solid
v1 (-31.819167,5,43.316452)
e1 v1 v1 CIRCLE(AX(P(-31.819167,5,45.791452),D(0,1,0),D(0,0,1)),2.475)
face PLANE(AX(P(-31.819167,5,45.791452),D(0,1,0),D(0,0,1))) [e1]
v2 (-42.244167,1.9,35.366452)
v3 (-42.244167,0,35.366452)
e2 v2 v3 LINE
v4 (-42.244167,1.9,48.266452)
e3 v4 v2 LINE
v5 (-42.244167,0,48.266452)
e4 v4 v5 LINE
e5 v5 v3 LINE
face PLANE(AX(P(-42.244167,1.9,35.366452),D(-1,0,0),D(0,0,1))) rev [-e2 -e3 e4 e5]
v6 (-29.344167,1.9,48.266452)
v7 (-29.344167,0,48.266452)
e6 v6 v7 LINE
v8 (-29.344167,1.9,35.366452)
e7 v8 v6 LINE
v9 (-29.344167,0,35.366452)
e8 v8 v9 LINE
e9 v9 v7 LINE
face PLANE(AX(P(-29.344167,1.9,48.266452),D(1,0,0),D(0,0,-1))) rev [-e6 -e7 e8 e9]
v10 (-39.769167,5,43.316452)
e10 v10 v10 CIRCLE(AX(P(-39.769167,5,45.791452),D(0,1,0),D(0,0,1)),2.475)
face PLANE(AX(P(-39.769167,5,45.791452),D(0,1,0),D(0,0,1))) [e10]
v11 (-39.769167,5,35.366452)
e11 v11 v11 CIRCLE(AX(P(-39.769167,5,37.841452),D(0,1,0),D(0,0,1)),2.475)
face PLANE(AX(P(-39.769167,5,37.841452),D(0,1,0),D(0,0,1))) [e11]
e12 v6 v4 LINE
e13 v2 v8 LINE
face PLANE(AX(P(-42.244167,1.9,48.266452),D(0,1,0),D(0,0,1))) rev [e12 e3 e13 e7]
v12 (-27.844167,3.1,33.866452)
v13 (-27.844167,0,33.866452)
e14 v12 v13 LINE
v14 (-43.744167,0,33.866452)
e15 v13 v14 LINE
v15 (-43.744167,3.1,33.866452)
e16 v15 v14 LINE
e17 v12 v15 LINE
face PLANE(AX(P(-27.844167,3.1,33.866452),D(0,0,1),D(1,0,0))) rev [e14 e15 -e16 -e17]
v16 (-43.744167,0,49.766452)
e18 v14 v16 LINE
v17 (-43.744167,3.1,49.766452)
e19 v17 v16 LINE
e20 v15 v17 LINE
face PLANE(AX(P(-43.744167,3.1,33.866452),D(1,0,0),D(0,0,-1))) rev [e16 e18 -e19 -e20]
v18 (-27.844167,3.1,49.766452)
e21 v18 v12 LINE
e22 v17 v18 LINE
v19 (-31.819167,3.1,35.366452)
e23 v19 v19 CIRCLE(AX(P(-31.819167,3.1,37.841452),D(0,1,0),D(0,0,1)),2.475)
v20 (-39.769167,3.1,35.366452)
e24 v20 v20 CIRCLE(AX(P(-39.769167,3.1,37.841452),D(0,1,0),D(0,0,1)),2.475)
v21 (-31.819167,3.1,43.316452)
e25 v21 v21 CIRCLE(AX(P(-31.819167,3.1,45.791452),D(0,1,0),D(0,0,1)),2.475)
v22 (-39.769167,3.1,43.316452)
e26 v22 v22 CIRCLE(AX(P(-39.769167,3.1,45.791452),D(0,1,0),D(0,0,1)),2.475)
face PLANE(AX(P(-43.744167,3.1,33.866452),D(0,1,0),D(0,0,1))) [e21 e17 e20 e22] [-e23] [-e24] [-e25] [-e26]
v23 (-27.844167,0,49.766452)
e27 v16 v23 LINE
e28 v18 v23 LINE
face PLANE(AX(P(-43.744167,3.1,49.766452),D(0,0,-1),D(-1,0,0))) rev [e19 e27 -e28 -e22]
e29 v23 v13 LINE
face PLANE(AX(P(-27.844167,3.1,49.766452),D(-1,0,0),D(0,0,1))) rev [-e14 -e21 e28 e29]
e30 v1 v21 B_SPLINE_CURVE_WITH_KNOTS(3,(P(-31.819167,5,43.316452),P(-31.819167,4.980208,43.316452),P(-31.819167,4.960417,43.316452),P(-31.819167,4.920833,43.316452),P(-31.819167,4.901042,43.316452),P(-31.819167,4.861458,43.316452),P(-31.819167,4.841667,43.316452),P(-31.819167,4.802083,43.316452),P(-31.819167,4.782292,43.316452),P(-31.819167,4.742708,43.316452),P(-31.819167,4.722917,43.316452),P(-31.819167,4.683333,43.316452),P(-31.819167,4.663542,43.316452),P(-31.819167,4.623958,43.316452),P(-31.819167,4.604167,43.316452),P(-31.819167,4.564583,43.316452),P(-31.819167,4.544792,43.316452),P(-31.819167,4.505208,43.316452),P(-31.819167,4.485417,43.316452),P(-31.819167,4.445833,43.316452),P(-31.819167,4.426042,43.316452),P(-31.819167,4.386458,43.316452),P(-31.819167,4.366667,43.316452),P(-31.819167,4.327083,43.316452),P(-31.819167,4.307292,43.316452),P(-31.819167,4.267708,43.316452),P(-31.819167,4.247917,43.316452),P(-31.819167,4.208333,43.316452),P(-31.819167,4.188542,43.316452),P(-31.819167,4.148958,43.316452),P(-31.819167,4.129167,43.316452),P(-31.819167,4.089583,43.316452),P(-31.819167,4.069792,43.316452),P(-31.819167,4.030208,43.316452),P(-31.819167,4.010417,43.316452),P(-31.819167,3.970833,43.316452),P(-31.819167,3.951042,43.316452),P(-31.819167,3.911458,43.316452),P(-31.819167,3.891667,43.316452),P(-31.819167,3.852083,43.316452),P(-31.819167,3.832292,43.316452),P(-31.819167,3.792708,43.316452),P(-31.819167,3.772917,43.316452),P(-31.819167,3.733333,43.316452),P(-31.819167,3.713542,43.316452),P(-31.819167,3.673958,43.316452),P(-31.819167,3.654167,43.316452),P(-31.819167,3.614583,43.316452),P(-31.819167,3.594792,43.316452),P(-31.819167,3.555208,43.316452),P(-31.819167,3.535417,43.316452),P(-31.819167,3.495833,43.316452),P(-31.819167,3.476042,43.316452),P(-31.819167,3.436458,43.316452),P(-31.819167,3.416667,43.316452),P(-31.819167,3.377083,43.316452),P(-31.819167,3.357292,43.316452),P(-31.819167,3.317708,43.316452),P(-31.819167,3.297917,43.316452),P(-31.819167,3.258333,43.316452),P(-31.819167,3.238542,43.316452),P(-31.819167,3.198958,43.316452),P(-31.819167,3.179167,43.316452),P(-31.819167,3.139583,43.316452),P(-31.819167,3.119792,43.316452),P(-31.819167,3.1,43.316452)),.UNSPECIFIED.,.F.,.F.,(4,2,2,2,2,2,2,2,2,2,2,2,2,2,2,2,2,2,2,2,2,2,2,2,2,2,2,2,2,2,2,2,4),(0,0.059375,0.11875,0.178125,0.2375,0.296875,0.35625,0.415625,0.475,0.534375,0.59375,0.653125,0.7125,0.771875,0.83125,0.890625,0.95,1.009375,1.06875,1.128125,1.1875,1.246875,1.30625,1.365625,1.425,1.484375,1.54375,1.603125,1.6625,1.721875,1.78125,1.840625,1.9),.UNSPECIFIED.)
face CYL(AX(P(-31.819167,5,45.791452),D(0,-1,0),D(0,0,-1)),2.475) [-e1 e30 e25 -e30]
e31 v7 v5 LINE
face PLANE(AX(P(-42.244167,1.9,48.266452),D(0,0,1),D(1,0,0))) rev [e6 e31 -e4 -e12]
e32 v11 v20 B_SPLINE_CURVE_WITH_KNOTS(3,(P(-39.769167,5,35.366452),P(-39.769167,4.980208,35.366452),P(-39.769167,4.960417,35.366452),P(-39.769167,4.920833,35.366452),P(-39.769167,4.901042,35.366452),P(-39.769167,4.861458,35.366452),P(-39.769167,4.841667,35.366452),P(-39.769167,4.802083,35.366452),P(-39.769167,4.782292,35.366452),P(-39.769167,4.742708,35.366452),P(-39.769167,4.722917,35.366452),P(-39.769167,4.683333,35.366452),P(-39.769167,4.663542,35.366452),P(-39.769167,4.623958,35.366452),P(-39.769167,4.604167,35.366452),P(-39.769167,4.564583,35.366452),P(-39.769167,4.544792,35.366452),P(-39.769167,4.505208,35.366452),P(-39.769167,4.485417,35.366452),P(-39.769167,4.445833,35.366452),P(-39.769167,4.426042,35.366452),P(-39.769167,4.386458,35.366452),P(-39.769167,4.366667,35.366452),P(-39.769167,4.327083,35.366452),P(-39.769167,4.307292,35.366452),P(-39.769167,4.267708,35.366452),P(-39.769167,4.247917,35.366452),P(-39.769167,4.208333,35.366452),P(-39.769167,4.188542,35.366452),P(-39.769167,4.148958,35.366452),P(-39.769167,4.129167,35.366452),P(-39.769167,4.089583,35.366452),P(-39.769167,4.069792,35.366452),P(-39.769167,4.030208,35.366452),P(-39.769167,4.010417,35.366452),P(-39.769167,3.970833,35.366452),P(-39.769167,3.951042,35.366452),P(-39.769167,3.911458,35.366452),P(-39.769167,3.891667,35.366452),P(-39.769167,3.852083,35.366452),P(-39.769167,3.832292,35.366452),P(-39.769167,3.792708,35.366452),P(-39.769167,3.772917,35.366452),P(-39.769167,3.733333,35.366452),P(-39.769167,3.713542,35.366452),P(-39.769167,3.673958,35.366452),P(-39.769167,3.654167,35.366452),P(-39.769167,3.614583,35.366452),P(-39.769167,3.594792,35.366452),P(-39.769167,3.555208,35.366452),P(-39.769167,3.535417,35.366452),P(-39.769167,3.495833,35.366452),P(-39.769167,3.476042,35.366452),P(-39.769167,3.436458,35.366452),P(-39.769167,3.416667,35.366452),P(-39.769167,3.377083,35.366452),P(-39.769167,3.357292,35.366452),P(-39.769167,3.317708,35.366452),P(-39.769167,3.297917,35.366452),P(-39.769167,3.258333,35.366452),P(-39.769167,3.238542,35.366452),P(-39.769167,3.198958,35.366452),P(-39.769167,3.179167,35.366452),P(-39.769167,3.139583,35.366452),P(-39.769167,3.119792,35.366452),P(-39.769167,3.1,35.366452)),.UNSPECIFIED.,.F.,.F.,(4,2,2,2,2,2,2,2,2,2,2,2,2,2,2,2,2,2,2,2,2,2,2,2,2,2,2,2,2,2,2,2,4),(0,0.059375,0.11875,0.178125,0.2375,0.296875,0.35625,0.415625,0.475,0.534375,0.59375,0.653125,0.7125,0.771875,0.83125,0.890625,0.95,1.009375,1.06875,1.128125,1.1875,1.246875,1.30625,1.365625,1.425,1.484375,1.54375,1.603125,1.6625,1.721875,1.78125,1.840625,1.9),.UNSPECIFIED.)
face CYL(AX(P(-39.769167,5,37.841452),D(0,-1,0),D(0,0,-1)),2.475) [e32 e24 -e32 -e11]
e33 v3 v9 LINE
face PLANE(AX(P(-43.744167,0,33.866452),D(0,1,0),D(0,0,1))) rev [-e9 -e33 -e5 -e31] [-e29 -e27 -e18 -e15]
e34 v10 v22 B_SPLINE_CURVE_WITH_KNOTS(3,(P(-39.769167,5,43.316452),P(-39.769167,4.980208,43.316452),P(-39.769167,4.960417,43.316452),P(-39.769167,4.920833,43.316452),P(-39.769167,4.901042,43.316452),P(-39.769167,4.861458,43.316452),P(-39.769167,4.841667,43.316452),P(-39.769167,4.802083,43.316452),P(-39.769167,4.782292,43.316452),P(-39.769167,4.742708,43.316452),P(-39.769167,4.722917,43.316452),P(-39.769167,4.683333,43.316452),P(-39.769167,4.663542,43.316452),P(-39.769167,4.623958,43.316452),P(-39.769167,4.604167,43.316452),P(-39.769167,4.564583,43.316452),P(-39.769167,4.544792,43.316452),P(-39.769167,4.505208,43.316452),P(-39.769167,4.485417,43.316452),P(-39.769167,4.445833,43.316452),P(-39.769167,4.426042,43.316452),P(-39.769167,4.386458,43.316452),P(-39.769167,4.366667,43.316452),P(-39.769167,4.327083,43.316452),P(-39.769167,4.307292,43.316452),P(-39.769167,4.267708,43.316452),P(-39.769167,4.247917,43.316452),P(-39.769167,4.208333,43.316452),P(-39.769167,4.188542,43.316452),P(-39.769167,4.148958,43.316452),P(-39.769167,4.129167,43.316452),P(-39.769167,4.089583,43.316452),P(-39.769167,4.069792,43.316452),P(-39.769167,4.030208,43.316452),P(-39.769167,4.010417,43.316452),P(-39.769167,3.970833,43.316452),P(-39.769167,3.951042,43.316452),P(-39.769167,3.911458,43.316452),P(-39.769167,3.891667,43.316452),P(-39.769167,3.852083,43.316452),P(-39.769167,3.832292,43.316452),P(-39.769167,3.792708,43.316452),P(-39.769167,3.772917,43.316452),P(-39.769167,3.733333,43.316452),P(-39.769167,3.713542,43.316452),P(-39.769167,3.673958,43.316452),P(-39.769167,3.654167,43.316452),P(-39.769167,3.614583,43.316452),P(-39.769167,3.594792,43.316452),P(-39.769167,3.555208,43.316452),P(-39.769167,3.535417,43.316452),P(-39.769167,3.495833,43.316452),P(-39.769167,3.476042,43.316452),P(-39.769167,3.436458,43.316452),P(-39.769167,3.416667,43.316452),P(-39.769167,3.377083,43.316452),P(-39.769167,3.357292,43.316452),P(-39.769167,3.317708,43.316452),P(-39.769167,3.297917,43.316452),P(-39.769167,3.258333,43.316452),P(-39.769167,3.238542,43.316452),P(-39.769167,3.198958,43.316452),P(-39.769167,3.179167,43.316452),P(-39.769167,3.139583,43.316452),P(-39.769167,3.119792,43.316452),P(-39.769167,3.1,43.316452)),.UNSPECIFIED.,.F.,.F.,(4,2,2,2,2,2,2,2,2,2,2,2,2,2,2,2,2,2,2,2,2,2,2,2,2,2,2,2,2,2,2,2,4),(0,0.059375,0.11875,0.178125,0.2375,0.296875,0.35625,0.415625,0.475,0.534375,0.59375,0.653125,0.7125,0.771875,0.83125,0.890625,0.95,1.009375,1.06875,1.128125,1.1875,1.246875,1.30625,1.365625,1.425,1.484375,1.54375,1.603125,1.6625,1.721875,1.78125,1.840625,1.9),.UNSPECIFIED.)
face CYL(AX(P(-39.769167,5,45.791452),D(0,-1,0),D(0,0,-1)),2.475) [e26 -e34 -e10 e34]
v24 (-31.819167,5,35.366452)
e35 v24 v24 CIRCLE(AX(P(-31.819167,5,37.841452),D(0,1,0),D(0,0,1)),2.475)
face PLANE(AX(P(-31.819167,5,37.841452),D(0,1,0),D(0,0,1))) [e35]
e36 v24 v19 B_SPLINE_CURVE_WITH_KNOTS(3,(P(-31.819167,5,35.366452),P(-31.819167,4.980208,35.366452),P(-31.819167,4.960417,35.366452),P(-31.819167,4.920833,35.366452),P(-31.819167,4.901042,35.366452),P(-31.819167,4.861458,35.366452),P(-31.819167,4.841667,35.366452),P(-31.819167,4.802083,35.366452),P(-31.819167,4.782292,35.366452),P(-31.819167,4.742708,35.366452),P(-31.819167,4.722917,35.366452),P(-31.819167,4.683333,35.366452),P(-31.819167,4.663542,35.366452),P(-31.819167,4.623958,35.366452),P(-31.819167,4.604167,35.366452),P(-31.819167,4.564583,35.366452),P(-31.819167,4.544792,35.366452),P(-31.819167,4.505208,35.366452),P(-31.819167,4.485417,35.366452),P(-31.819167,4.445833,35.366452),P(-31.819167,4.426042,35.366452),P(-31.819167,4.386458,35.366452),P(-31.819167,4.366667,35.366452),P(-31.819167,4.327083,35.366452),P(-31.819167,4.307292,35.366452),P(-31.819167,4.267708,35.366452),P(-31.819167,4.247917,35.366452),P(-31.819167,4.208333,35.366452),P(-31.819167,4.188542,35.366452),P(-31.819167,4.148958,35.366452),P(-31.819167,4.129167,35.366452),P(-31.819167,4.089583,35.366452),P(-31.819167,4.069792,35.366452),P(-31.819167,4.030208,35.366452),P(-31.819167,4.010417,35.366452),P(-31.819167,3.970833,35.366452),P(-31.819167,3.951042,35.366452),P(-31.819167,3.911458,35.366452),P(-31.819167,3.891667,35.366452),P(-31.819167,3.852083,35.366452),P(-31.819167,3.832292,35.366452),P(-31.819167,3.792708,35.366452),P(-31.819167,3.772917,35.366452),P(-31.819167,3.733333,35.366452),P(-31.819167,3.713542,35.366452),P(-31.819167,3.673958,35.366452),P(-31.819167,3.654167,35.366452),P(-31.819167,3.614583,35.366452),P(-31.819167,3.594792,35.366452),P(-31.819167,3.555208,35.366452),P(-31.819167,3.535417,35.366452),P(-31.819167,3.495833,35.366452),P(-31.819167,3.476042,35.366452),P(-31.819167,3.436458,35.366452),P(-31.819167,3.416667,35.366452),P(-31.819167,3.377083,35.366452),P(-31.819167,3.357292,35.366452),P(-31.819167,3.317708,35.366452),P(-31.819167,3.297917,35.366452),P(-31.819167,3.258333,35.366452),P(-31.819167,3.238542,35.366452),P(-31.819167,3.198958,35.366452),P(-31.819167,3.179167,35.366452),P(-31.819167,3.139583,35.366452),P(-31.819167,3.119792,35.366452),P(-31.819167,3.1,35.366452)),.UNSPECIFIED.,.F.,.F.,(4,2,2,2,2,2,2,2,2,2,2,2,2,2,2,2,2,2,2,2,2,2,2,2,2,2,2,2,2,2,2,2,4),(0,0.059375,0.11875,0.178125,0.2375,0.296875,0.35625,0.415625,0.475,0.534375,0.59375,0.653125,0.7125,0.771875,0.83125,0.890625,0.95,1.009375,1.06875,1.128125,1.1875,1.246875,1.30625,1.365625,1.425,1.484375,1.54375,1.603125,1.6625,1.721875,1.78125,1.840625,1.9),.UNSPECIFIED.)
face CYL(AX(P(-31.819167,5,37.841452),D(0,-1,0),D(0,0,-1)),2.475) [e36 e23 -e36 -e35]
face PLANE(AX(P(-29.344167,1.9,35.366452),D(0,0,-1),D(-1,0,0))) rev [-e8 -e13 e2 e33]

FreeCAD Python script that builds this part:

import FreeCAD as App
import Part
import Sketcher

V = App.Vector
Q = App.Units.Quantity

doc = App.newDocument("Part")
body = doc.addObject("PartDesign::Body", "Body")

# Sketch on XZ plane
sketch1 = body.newObject("Sketcher::SketchObject", "Sketch")
sketch1.AttachmentSupport = (doc.getObject("XZ_Plane"), [""])
sketch1.MapMode = "FlatFace"
sketch1.addGeometry([
    Part.LineSegment(V(-44, 34, 0), V(-44, 50, 0)),
    Part.LineSegment(V(-44, 50, 0), V(-28, 50, 0)),
    Part.LineSegment(V(-28, 50, 0), V(-28, 34, 0)),
    Part.LineSegment(V(-28, 34, 0), V(-44, 34, 0)),
], False)
sketch1.addConstraint([
    Sketcher.Constraint("Coincident", 0, 2, 1, 1),
    Sketcher.Constraint("Coincident", 1, 2, 2, 1),
    Sketcher.Constraint("Coincident", 2, 2, 3, 1),
    Sketcher.Constraint("Coincident", 3, 2, 0, 1),
    Sketcher.Constraint("Vertical", 0),
    Sketcher.Constraint("Horizontal", 1),
    Sketcher.Constraint("Vertical", 2),
    Sketcher.Constraint("Horizontal", 3),
    Sketcher.Constraint("Equal", 3, 0),
    Sketcher.Constraint("DistanceX", 1, 1, 1, 2, Q("15.9 mm")),
    Sketcher.Constraint("DistanceY", -1, 1, 0, 2, Q("49.766452 mm")),
    Sketcher.Constraint("DistanceX", 0, 2, -1, 1, Q("43.744167 mm")),
])
pad1 = body.newObject("PartDesign::Pad", "Pad")
pad1.Profile = sketch1
pad1.Length = 3.1
pad1.Reversed = True

# Sketch on XZ plane
sketch2 = body.newObject("Sketcher::SketchObject", "Sketch001")
sketch2.AttachmentSupport = (doc.getObject("XZ_Plane"), [""])
sketch2.MapMode = "FlatFace"
sketch2.addGeometry([
    Part.LineSegment(V(-42, 48, 0), V(-42, 35, 0)),
    Part.LineSegment(V(-42, 35, 0), V(-29, 35, 0)),
    Part.LineSegment(V(-29, 35, 0), V(-29, 48, 0)),
    Part.LineSegment(V(-29, 48, 0), V(-42, 48, 0)),
], False)
sketch2.addConstraint([
    Sketcher.Constraint("Coincident", 0, 2, 1, 1),
    Sketcher.Constraint("Coincident", 1, 2, 2, 1),
    Sketcher.Constraint("Coincident", 2, 2, 3, 1),
    Sketcher.Constraint("Coincident", 3, 2, 0, 1),
    Sketcher.Constraint("Vertical", 0),
    Sketcher.Constraint("Horizontal", 1),
    Sketcher.Constraint("Vertical", 2),
    Sketcher.Constraint("Horizontal", 3),
    Sketcher.Constraint("Equal", 3, 0),
    Sketcher.Constraint("DistanceX", 1, 1, 1, 2, Q("12.9 mm")),
    Sketcher.Constraint("DistanceY", -1, 1, 0, 2, Q("35.366452 mm")),
    Sketcher.Constraint("DistanceX", 0, 2, -1, 1, Q("42.244167 mm")),
])
pocket1 = body.newObject("PartDesign::Pocket", "Pocket")
pocket1.Profile = sketch2
pocket1.Length = 1.9

# Sketch on XZ plane
sketch3 = body.newObject("Sketcher::SketchObject", "Sketch002")
sketch3.AttachmentSupport = (doc.getObject("XZ_Plane"), [""])
sketch3.MapMode = "FlatFace"
sketch3.AttachmentOffset = App.Placement(V(0, 0, -3.1), App.Rotation())
sketch3.addGeometry([
    Part.Circle(V(-39.8, 37.8, 0), V(0, 0, 1), 2.5),
    Part.Circle(V(-31.8, 37.8, 0), V(0, 0, 1), 2.5),
    Part.Circle(V(-39.8, 45.8, 0), V(0, 0, 1), 2.5),
    Part.Circle(V(-31.8, 45.8, 0), V(0, 0, 1), 2.5),
], False)
sketch3.addConstraint([
    Sketcher.Constraint("Equal", 0, 1),
    Sketcher.Constraint("Equal", 1, 2),
    Sketcher.Constraint("Equal", 2, 3),
    Sketcher.Constraint("Horizontal", 0, 3, 1, 3),
    Sketcher.Constraint("Horizontal", 2, 3, 3, 3),
    Sketcher.Constraint("Vertical", 0, 3, 2, 3),
    Sketcher.Constraint("Vertical", 1, 3, 3, 3),
    Sketcher.Constraint("Diameter", 0, Q("4.95 mm")),
    Sketcher.Constraint("DistanceX", 0, 3, 1, 3, Q("7.95 mm")),
    Sketcher.Constraint("DistanceY", 0, 3, 2, 3, Q("7.95 mm")),
    Sketcher.Constraint("DistanceY", -1, 1, 0, 3, Q("37.841452 mm")),
    Sketcher.Constraint("DistanceX", 0, 3, -1, 1, Q("39.769167 mm")),
])
pad2 = body.newObject("PartDesign::Pad", "Pad001")
pad2.Profile = sketch3
pad2.Length = 1.9
pad2.Reversed = True

doc.recompute()
